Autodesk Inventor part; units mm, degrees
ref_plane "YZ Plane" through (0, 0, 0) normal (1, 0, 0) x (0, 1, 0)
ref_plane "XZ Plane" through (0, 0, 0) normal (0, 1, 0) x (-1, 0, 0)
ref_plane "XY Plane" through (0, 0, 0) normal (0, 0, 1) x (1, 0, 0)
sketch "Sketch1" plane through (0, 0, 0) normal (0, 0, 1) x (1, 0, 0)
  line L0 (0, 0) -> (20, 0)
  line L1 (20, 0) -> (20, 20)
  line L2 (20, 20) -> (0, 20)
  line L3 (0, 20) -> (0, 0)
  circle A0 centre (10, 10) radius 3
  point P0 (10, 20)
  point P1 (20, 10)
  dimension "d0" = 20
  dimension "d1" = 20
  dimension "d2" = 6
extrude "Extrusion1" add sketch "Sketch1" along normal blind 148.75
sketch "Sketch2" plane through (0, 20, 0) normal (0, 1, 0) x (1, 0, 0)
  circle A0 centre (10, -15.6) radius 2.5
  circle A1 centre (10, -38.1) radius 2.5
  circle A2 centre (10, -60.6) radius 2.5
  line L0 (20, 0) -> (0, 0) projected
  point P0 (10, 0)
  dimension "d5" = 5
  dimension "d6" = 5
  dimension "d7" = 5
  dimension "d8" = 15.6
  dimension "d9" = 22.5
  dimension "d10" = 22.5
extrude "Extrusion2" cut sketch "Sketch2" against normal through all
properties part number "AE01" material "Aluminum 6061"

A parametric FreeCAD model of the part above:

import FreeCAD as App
import Part
import Sketcher

V = App.Vector


def add_polygon(sketch, points):
    """Adds a closed chain of lines whose ends are joined by coincident constraints."""
    first, n = sketch.GeometryCount, len(points)
    for a, b in zip(points, points[1:] + points[:1]):
        sketch.addGeometry(Part.LineSegment(App.Vector(*a, 0), App.Vector(*b, 0)), False)
    for i in range(n):
        sketch.addConstraint(Sketcher.Constraint("Coincident", first + i, 2, first + (i + 1) % n, 1))

doc = App.newDocument("Part")
params = doc.addObject("Spreadsheet::Sheet", "Params")
for row, (alias, value) in enumerate([
    ("sketch1_diameter", "6 mm"),
    ("sketch1_width", "20 mm"),
    ("pad1_length", "148.75 mm"),
    ("sketch2_diameter", "5 mm"),
], start=1):
    params.set(f"A{row}", alias)
    params.set(f"B{row}", "=" + value)
    params.setAlias(f"B{row}", alias)

body = doc.addObject("PartDesign::Body", "Body")

# Sketch on XY plane
sketch1 = doc.addObject("Sketcher::SketchObject", "Sketch")
body.addObject(sketch1)
sketch1.AttachmentSupport = (doc.XY_Plane, [""])
sketch1.MapMode = "FlatFace"
add_polygon(sketch1, [(0, 20), (0, 0), (20, 0), (20, 20)])  # lines 0-3
sketch1.addGeometry(Part.Circle(V(10, 10, 0), V(0, 0, 1), 3), False)  # 4
sketch1.addConstraint([
    Sketcher.Constraint("Vertical", 0),
    Sketcher.Constraint("Horizontal", 1),
    Sketcher.Constraint("Vertical", 2),
    Sketcher.Constraint("Horizontal", 3),
    Sketcher.Constraint("Coincident", 0, 2, -1, 1),
    Sketcher.Constraint("Equal", 3, 0),
    Sketcher.Constraint("Diameter", 4, 6.0),
    Sketcher.Constraint("DistanceX", 1, 1, 1, 2, 20.0),
    Sketcher.Constraint("DistanceX", -1, 1, 4, 3, 10.0),
    Sketcher.Constraint("DistanceY", -1, 1, 4, 3, 10.0),
])
sketch1.setExpression("Constraints[10]", "Params.sketch1_diameter")
sketch1.setExpression("Constraints[11]", "Params.sketch1_width")
pad1 = doc.addObject("PartDesign::Pad", "Pad")
body.addObject(pad1)
pad1.Profile = sketch1
pad1.setExpression("Length", "Params.pad1_length")

# Sketch on XZ plane
sketch2 = doc.addObject("Sketcher::SketchObject", "Sketch001")
body.addObject(sketch2)
sketch2.AttachmentSupport = (doc.XZ_Plane, [""])
sketch2.MapMode = "FlatFace"
sketch2.AttachmentOffset = App.Placement(V(0, 0, -20), App.Rotation())
sketch2.addGeometry([
    Part.Circle(V(10, 15.6, 0), V(0, 0, 1), 2.5),
    Part.Circle(V(10, 38.1, 0), V(0, 0, 1), 2.5),
    Part.Circle(V(10, 60.6, 0), V(0, 0, 1), 2.5),
], False)
sketch2.addConstraint([
    Sketcher.Constraint("Equal", 0, 1),
    Sketcher.Constraint("Equal", 1, 2),
    Sketcher.Constraint("Vertical", 0, 3, 1, 3),
    Sketcher.Constraint("Vertical", 1, 3, 2, 3),
    Sketcher.Constraint("Diameter", 0, 5.0),
    Sketcher.Constraint("DistanceY", -1, 1, 0, 3, 15.6),
    Sketcher.Constraint("DistanceY", 0, 3, 1, 3, 22.5),
    Sketcher.Constraint("DistanceY", 1, 3, 2, 3, 22.5),
    Sketcher.Constraint("DistanceX", -1, 1, 0, 3, 10.0),
])
sketch2.setExpression("Constraints[4]", "Params.sketch2_diameter")
pocket1 = doc.addObject("PartDesign::Pocket", "Pocket")
body.addObject(pocket1)
pocket1.Profile = sketch2
pocket1.Type = "ThroughAll"
pocket1.Reversed = True

doc.recompute()
